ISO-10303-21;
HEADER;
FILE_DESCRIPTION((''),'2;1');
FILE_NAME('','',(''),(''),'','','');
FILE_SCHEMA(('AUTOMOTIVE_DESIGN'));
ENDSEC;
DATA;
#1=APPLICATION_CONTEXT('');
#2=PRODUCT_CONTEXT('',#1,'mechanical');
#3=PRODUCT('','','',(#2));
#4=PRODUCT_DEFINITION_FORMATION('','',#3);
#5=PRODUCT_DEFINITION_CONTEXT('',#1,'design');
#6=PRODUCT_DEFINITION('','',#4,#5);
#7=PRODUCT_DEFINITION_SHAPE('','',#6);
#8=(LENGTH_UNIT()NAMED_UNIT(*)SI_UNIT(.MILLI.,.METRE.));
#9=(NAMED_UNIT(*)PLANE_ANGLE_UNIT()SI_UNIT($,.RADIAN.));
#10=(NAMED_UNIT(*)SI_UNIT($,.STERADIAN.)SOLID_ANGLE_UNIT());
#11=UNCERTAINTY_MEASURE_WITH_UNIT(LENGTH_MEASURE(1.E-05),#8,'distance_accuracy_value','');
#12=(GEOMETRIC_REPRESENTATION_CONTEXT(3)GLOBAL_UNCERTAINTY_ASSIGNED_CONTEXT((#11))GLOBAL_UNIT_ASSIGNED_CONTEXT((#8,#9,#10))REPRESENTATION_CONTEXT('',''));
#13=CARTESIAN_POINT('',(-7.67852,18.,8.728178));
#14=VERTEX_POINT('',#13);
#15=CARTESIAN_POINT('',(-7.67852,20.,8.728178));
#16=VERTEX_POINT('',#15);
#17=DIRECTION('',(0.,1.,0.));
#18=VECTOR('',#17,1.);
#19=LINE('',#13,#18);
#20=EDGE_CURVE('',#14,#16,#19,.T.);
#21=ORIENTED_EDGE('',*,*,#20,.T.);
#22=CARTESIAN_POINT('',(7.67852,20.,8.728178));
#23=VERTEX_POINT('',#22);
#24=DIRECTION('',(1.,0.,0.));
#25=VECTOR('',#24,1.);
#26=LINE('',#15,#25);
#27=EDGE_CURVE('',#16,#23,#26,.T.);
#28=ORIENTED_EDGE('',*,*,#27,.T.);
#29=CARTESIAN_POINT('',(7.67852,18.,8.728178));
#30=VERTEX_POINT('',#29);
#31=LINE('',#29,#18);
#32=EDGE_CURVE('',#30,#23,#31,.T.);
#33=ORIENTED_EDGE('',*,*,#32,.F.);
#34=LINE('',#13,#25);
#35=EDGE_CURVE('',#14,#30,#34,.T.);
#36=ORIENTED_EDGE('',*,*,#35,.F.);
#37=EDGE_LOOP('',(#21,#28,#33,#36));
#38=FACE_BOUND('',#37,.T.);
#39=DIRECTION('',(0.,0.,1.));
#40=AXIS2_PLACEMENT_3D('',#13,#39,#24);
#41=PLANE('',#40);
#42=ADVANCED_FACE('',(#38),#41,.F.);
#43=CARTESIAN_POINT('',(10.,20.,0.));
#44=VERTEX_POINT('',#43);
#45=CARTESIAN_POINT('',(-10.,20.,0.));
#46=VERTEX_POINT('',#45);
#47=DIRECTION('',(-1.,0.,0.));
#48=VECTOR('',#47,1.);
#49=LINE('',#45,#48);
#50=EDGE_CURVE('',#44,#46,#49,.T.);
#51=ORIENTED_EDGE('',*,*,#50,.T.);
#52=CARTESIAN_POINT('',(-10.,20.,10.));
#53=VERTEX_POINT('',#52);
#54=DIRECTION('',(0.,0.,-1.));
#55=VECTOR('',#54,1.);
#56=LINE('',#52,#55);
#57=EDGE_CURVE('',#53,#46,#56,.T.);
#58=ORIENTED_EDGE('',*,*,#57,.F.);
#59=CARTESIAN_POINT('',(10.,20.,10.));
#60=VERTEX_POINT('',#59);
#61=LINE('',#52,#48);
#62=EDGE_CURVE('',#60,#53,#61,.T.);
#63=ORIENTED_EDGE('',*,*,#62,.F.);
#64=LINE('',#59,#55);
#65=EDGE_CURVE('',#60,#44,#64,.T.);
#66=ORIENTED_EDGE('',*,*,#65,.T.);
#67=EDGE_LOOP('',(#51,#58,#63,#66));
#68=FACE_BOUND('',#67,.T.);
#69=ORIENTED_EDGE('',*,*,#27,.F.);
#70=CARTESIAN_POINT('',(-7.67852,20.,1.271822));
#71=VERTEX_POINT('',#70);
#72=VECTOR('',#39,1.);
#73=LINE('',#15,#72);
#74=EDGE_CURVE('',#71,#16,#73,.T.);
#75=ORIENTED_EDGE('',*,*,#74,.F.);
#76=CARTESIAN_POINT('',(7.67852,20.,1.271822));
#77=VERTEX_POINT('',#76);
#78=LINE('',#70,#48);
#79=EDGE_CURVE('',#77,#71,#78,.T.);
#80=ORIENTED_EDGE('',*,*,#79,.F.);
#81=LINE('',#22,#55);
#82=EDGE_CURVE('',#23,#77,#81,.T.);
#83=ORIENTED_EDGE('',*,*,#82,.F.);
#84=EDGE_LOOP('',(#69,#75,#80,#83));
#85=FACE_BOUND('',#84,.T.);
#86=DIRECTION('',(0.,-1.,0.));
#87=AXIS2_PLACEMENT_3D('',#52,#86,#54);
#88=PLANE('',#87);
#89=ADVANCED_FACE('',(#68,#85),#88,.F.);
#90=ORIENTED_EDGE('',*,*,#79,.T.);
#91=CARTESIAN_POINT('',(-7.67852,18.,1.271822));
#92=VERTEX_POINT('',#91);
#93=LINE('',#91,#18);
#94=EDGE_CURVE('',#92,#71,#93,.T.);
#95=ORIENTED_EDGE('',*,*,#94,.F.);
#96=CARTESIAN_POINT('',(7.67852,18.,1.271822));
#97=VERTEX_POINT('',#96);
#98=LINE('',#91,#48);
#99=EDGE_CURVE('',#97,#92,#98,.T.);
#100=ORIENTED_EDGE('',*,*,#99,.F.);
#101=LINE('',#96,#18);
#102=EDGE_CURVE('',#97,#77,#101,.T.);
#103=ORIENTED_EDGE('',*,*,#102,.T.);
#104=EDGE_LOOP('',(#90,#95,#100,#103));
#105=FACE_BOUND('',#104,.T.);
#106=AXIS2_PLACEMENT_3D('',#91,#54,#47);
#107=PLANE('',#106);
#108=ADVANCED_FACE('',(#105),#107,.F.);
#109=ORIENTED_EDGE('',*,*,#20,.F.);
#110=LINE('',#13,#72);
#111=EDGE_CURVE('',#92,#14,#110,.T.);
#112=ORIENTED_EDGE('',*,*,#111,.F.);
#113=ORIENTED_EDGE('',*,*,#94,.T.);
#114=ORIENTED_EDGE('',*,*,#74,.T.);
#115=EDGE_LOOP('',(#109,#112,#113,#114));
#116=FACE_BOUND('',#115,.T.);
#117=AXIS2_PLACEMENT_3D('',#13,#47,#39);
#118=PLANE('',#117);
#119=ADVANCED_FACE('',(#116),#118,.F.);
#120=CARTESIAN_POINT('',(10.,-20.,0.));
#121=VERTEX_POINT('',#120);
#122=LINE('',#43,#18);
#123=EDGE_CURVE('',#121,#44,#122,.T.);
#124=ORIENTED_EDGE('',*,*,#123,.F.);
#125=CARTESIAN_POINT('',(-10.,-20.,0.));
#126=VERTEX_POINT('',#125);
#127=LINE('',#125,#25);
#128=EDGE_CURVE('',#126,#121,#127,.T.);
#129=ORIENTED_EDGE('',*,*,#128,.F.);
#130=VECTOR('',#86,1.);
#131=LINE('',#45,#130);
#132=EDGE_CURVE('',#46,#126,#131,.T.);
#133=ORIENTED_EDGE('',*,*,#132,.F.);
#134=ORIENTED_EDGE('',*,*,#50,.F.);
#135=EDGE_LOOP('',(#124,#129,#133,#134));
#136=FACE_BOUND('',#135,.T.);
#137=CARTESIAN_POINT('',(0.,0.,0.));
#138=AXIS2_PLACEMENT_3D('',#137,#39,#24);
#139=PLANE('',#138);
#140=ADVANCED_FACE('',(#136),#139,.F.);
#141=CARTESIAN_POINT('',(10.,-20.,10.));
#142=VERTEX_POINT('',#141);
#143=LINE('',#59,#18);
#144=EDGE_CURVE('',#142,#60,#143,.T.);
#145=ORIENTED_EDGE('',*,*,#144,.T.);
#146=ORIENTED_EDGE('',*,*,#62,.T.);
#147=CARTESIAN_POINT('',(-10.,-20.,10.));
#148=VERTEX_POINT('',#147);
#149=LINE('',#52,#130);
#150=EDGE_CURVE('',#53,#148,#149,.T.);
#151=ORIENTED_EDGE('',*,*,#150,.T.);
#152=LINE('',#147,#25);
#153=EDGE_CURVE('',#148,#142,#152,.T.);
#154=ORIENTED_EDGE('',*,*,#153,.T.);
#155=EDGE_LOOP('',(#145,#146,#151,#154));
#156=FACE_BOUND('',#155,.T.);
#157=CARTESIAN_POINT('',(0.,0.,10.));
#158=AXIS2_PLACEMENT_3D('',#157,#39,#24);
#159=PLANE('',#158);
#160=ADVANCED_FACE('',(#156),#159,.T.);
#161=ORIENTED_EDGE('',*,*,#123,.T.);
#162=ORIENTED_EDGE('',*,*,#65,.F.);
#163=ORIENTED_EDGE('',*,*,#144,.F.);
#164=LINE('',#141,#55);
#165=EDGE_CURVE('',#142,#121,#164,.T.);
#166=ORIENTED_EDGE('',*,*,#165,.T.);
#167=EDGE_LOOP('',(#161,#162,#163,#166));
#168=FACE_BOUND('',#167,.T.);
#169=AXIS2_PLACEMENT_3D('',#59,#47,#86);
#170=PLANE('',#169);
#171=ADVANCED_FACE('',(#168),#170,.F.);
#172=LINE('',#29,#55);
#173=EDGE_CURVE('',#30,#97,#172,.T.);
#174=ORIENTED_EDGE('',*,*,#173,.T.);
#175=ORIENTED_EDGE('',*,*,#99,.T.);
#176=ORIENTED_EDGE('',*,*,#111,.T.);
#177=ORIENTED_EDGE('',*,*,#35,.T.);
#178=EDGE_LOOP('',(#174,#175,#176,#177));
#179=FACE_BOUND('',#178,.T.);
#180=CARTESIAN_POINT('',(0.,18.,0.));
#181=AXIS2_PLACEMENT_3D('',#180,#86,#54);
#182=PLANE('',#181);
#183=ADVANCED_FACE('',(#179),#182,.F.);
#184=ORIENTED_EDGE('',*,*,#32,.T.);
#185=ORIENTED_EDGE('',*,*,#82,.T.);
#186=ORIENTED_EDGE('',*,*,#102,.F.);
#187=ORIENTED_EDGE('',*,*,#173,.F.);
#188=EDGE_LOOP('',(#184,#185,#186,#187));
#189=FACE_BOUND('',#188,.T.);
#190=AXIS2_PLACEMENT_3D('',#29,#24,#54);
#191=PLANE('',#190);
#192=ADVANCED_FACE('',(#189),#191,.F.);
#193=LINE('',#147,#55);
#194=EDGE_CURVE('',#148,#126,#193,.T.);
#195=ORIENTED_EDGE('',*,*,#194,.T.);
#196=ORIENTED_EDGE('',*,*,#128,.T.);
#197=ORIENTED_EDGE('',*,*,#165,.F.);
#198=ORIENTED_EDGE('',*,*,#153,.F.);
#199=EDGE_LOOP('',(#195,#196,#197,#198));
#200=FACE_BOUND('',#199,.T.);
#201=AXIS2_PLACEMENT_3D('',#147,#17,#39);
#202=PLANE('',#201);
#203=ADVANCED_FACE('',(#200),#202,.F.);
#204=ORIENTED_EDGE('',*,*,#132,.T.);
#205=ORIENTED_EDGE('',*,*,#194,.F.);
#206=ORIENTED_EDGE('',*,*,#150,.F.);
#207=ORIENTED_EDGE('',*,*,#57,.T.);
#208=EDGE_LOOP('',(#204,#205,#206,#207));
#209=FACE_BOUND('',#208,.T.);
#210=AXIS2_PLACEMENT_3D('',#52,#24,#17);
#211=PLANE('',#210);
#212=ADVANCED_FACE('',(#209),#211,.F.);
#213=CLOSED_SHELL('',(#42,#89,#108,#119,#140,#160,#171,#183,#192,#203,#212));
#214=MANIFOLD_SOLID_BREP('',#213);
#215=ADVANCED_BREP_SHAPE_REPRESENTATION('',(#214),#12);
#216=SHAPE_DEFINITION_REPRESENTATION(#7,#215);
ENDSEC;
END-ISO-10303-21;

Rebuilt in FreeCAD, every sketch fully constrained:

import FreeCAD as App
import Part
import Sketcher

V = App.Vector

doc = App.newDocument("Part")
body = doc.addObject("PartDesign::Body", "Body")

sketch1 = doc.addObject("Sketcher::SketchObject", "Sketch")
body.addObject(sketch1)
sketch1.AttachmentSupport = (doc.XY_Plane, [""])
sketch1.MapMode = "FlatFace"
sketch1.addGeometry([
    Part.LineSegment(V(-10, 20, 0), V(-10, -20, 0)),
    Part.LineSegment(V(-10, -20, 0), V(10, -20, 0)),
    Part.LineSegment(V(10, -20, 0), V(10, 20, 0)),
    Part.LineSegment(V(10, 20, 0), V(-10, 20, 0)),
], False)
sketch1.addConstraint([
    Sketcher.Constraint("Coincident", 0, 2, 1, 1),
    Sketcher.Constraint("Coincident", 1, 2, 2, 1),
    Sketcher.Constraint("Coincident", 2, 2, 3, 1),
    Sketcher.Constraint("Coincident", 3, 2, 0, 1),
    Sketcher.Constraint("Vertical", 0),
    Sketcher.Constraint("Horizontal", 1),
    Sketcher.Constraint("Vertical", 2),
    Sketcher.Constraint("Horizontal", 3),
    Sketcher.Constraint("Symmetric", 0, 2, 2, 2, -1, 1),
    Sketcher.Constraint("DistanceX", 1, 1, 1, 2, 20.0),
    Sketcher.Constraint("DistanceY", 0, 2, 0, 1, 40.0),
])
pad1 = doc.addObject("PartDesign::Pad", "Pad")
body.addObject(pad1)
pad1.Profile = sketch1
pad1.Length = 10

sketch2 = doc.addObject("Sketcher::SketchObject", "Sketch001")
body.addObject(sketch2)
sketch2.AttachmentSupport = (doc.XZ_Plane, [""])
sketch2.MapMode = "FlatFace"
sketch2.AttachmentOffset = App.Placement(V(0, 0, -20), App.Rotation())
sketch2.addGeometry([
    Part.LineSegment(V(-8, 1, 0), V(-8, 9, 0)),
    Part.LineSegment(V(-8, 9, 0), V(8, 9, 0)),
    Part.LineSegment(V(8, 9, 0), V(8, 1, 0)),
    Part.LineSegment(V(8, 1, 0), V(-8, 1, 0)),
], False)
sketch2.addConstraint([
    Sketcher.Constraint("Coincident", 0, 2, 1, 1),
    Sketcher.Constraint("Coincident", 1, 2, 2, 1),
    Sketcher.Constraint("Coincident", 2, 2, 3, 1),
    Sketcher.Constraint("Coincident", 3, 2, 0, 1),
    Sketcher.Constraint("Vertical", 0),
    Sketcher.Constraint("Horizontal", 1),
    Sketcher.Constraint("Vertical", 2),
    Sketcher.Constraint("Horizontal", 3),
    Sketcher.Constraint("DistanceX", 1, 1, 1, 2, 15.35704),
    Sketcher.Constraint("DistanceY", 0, 1, 0, 2, 7.456357),
    Sketcher.Constraint("DistanceX", 0, 2, -1, 1, 7.67852),
    Sketcher.Constraint("DistanceY", -1, 1, 0, 2, 8.728178),
])
pocket1 = doc.addObject("PartDesign::Pocket", "Pocket")
body.addObject(pocket1)
pocket1.Profile = sketch2
pocket1.Length = 2
pocket1.Reversed = True

doc.recompute()
